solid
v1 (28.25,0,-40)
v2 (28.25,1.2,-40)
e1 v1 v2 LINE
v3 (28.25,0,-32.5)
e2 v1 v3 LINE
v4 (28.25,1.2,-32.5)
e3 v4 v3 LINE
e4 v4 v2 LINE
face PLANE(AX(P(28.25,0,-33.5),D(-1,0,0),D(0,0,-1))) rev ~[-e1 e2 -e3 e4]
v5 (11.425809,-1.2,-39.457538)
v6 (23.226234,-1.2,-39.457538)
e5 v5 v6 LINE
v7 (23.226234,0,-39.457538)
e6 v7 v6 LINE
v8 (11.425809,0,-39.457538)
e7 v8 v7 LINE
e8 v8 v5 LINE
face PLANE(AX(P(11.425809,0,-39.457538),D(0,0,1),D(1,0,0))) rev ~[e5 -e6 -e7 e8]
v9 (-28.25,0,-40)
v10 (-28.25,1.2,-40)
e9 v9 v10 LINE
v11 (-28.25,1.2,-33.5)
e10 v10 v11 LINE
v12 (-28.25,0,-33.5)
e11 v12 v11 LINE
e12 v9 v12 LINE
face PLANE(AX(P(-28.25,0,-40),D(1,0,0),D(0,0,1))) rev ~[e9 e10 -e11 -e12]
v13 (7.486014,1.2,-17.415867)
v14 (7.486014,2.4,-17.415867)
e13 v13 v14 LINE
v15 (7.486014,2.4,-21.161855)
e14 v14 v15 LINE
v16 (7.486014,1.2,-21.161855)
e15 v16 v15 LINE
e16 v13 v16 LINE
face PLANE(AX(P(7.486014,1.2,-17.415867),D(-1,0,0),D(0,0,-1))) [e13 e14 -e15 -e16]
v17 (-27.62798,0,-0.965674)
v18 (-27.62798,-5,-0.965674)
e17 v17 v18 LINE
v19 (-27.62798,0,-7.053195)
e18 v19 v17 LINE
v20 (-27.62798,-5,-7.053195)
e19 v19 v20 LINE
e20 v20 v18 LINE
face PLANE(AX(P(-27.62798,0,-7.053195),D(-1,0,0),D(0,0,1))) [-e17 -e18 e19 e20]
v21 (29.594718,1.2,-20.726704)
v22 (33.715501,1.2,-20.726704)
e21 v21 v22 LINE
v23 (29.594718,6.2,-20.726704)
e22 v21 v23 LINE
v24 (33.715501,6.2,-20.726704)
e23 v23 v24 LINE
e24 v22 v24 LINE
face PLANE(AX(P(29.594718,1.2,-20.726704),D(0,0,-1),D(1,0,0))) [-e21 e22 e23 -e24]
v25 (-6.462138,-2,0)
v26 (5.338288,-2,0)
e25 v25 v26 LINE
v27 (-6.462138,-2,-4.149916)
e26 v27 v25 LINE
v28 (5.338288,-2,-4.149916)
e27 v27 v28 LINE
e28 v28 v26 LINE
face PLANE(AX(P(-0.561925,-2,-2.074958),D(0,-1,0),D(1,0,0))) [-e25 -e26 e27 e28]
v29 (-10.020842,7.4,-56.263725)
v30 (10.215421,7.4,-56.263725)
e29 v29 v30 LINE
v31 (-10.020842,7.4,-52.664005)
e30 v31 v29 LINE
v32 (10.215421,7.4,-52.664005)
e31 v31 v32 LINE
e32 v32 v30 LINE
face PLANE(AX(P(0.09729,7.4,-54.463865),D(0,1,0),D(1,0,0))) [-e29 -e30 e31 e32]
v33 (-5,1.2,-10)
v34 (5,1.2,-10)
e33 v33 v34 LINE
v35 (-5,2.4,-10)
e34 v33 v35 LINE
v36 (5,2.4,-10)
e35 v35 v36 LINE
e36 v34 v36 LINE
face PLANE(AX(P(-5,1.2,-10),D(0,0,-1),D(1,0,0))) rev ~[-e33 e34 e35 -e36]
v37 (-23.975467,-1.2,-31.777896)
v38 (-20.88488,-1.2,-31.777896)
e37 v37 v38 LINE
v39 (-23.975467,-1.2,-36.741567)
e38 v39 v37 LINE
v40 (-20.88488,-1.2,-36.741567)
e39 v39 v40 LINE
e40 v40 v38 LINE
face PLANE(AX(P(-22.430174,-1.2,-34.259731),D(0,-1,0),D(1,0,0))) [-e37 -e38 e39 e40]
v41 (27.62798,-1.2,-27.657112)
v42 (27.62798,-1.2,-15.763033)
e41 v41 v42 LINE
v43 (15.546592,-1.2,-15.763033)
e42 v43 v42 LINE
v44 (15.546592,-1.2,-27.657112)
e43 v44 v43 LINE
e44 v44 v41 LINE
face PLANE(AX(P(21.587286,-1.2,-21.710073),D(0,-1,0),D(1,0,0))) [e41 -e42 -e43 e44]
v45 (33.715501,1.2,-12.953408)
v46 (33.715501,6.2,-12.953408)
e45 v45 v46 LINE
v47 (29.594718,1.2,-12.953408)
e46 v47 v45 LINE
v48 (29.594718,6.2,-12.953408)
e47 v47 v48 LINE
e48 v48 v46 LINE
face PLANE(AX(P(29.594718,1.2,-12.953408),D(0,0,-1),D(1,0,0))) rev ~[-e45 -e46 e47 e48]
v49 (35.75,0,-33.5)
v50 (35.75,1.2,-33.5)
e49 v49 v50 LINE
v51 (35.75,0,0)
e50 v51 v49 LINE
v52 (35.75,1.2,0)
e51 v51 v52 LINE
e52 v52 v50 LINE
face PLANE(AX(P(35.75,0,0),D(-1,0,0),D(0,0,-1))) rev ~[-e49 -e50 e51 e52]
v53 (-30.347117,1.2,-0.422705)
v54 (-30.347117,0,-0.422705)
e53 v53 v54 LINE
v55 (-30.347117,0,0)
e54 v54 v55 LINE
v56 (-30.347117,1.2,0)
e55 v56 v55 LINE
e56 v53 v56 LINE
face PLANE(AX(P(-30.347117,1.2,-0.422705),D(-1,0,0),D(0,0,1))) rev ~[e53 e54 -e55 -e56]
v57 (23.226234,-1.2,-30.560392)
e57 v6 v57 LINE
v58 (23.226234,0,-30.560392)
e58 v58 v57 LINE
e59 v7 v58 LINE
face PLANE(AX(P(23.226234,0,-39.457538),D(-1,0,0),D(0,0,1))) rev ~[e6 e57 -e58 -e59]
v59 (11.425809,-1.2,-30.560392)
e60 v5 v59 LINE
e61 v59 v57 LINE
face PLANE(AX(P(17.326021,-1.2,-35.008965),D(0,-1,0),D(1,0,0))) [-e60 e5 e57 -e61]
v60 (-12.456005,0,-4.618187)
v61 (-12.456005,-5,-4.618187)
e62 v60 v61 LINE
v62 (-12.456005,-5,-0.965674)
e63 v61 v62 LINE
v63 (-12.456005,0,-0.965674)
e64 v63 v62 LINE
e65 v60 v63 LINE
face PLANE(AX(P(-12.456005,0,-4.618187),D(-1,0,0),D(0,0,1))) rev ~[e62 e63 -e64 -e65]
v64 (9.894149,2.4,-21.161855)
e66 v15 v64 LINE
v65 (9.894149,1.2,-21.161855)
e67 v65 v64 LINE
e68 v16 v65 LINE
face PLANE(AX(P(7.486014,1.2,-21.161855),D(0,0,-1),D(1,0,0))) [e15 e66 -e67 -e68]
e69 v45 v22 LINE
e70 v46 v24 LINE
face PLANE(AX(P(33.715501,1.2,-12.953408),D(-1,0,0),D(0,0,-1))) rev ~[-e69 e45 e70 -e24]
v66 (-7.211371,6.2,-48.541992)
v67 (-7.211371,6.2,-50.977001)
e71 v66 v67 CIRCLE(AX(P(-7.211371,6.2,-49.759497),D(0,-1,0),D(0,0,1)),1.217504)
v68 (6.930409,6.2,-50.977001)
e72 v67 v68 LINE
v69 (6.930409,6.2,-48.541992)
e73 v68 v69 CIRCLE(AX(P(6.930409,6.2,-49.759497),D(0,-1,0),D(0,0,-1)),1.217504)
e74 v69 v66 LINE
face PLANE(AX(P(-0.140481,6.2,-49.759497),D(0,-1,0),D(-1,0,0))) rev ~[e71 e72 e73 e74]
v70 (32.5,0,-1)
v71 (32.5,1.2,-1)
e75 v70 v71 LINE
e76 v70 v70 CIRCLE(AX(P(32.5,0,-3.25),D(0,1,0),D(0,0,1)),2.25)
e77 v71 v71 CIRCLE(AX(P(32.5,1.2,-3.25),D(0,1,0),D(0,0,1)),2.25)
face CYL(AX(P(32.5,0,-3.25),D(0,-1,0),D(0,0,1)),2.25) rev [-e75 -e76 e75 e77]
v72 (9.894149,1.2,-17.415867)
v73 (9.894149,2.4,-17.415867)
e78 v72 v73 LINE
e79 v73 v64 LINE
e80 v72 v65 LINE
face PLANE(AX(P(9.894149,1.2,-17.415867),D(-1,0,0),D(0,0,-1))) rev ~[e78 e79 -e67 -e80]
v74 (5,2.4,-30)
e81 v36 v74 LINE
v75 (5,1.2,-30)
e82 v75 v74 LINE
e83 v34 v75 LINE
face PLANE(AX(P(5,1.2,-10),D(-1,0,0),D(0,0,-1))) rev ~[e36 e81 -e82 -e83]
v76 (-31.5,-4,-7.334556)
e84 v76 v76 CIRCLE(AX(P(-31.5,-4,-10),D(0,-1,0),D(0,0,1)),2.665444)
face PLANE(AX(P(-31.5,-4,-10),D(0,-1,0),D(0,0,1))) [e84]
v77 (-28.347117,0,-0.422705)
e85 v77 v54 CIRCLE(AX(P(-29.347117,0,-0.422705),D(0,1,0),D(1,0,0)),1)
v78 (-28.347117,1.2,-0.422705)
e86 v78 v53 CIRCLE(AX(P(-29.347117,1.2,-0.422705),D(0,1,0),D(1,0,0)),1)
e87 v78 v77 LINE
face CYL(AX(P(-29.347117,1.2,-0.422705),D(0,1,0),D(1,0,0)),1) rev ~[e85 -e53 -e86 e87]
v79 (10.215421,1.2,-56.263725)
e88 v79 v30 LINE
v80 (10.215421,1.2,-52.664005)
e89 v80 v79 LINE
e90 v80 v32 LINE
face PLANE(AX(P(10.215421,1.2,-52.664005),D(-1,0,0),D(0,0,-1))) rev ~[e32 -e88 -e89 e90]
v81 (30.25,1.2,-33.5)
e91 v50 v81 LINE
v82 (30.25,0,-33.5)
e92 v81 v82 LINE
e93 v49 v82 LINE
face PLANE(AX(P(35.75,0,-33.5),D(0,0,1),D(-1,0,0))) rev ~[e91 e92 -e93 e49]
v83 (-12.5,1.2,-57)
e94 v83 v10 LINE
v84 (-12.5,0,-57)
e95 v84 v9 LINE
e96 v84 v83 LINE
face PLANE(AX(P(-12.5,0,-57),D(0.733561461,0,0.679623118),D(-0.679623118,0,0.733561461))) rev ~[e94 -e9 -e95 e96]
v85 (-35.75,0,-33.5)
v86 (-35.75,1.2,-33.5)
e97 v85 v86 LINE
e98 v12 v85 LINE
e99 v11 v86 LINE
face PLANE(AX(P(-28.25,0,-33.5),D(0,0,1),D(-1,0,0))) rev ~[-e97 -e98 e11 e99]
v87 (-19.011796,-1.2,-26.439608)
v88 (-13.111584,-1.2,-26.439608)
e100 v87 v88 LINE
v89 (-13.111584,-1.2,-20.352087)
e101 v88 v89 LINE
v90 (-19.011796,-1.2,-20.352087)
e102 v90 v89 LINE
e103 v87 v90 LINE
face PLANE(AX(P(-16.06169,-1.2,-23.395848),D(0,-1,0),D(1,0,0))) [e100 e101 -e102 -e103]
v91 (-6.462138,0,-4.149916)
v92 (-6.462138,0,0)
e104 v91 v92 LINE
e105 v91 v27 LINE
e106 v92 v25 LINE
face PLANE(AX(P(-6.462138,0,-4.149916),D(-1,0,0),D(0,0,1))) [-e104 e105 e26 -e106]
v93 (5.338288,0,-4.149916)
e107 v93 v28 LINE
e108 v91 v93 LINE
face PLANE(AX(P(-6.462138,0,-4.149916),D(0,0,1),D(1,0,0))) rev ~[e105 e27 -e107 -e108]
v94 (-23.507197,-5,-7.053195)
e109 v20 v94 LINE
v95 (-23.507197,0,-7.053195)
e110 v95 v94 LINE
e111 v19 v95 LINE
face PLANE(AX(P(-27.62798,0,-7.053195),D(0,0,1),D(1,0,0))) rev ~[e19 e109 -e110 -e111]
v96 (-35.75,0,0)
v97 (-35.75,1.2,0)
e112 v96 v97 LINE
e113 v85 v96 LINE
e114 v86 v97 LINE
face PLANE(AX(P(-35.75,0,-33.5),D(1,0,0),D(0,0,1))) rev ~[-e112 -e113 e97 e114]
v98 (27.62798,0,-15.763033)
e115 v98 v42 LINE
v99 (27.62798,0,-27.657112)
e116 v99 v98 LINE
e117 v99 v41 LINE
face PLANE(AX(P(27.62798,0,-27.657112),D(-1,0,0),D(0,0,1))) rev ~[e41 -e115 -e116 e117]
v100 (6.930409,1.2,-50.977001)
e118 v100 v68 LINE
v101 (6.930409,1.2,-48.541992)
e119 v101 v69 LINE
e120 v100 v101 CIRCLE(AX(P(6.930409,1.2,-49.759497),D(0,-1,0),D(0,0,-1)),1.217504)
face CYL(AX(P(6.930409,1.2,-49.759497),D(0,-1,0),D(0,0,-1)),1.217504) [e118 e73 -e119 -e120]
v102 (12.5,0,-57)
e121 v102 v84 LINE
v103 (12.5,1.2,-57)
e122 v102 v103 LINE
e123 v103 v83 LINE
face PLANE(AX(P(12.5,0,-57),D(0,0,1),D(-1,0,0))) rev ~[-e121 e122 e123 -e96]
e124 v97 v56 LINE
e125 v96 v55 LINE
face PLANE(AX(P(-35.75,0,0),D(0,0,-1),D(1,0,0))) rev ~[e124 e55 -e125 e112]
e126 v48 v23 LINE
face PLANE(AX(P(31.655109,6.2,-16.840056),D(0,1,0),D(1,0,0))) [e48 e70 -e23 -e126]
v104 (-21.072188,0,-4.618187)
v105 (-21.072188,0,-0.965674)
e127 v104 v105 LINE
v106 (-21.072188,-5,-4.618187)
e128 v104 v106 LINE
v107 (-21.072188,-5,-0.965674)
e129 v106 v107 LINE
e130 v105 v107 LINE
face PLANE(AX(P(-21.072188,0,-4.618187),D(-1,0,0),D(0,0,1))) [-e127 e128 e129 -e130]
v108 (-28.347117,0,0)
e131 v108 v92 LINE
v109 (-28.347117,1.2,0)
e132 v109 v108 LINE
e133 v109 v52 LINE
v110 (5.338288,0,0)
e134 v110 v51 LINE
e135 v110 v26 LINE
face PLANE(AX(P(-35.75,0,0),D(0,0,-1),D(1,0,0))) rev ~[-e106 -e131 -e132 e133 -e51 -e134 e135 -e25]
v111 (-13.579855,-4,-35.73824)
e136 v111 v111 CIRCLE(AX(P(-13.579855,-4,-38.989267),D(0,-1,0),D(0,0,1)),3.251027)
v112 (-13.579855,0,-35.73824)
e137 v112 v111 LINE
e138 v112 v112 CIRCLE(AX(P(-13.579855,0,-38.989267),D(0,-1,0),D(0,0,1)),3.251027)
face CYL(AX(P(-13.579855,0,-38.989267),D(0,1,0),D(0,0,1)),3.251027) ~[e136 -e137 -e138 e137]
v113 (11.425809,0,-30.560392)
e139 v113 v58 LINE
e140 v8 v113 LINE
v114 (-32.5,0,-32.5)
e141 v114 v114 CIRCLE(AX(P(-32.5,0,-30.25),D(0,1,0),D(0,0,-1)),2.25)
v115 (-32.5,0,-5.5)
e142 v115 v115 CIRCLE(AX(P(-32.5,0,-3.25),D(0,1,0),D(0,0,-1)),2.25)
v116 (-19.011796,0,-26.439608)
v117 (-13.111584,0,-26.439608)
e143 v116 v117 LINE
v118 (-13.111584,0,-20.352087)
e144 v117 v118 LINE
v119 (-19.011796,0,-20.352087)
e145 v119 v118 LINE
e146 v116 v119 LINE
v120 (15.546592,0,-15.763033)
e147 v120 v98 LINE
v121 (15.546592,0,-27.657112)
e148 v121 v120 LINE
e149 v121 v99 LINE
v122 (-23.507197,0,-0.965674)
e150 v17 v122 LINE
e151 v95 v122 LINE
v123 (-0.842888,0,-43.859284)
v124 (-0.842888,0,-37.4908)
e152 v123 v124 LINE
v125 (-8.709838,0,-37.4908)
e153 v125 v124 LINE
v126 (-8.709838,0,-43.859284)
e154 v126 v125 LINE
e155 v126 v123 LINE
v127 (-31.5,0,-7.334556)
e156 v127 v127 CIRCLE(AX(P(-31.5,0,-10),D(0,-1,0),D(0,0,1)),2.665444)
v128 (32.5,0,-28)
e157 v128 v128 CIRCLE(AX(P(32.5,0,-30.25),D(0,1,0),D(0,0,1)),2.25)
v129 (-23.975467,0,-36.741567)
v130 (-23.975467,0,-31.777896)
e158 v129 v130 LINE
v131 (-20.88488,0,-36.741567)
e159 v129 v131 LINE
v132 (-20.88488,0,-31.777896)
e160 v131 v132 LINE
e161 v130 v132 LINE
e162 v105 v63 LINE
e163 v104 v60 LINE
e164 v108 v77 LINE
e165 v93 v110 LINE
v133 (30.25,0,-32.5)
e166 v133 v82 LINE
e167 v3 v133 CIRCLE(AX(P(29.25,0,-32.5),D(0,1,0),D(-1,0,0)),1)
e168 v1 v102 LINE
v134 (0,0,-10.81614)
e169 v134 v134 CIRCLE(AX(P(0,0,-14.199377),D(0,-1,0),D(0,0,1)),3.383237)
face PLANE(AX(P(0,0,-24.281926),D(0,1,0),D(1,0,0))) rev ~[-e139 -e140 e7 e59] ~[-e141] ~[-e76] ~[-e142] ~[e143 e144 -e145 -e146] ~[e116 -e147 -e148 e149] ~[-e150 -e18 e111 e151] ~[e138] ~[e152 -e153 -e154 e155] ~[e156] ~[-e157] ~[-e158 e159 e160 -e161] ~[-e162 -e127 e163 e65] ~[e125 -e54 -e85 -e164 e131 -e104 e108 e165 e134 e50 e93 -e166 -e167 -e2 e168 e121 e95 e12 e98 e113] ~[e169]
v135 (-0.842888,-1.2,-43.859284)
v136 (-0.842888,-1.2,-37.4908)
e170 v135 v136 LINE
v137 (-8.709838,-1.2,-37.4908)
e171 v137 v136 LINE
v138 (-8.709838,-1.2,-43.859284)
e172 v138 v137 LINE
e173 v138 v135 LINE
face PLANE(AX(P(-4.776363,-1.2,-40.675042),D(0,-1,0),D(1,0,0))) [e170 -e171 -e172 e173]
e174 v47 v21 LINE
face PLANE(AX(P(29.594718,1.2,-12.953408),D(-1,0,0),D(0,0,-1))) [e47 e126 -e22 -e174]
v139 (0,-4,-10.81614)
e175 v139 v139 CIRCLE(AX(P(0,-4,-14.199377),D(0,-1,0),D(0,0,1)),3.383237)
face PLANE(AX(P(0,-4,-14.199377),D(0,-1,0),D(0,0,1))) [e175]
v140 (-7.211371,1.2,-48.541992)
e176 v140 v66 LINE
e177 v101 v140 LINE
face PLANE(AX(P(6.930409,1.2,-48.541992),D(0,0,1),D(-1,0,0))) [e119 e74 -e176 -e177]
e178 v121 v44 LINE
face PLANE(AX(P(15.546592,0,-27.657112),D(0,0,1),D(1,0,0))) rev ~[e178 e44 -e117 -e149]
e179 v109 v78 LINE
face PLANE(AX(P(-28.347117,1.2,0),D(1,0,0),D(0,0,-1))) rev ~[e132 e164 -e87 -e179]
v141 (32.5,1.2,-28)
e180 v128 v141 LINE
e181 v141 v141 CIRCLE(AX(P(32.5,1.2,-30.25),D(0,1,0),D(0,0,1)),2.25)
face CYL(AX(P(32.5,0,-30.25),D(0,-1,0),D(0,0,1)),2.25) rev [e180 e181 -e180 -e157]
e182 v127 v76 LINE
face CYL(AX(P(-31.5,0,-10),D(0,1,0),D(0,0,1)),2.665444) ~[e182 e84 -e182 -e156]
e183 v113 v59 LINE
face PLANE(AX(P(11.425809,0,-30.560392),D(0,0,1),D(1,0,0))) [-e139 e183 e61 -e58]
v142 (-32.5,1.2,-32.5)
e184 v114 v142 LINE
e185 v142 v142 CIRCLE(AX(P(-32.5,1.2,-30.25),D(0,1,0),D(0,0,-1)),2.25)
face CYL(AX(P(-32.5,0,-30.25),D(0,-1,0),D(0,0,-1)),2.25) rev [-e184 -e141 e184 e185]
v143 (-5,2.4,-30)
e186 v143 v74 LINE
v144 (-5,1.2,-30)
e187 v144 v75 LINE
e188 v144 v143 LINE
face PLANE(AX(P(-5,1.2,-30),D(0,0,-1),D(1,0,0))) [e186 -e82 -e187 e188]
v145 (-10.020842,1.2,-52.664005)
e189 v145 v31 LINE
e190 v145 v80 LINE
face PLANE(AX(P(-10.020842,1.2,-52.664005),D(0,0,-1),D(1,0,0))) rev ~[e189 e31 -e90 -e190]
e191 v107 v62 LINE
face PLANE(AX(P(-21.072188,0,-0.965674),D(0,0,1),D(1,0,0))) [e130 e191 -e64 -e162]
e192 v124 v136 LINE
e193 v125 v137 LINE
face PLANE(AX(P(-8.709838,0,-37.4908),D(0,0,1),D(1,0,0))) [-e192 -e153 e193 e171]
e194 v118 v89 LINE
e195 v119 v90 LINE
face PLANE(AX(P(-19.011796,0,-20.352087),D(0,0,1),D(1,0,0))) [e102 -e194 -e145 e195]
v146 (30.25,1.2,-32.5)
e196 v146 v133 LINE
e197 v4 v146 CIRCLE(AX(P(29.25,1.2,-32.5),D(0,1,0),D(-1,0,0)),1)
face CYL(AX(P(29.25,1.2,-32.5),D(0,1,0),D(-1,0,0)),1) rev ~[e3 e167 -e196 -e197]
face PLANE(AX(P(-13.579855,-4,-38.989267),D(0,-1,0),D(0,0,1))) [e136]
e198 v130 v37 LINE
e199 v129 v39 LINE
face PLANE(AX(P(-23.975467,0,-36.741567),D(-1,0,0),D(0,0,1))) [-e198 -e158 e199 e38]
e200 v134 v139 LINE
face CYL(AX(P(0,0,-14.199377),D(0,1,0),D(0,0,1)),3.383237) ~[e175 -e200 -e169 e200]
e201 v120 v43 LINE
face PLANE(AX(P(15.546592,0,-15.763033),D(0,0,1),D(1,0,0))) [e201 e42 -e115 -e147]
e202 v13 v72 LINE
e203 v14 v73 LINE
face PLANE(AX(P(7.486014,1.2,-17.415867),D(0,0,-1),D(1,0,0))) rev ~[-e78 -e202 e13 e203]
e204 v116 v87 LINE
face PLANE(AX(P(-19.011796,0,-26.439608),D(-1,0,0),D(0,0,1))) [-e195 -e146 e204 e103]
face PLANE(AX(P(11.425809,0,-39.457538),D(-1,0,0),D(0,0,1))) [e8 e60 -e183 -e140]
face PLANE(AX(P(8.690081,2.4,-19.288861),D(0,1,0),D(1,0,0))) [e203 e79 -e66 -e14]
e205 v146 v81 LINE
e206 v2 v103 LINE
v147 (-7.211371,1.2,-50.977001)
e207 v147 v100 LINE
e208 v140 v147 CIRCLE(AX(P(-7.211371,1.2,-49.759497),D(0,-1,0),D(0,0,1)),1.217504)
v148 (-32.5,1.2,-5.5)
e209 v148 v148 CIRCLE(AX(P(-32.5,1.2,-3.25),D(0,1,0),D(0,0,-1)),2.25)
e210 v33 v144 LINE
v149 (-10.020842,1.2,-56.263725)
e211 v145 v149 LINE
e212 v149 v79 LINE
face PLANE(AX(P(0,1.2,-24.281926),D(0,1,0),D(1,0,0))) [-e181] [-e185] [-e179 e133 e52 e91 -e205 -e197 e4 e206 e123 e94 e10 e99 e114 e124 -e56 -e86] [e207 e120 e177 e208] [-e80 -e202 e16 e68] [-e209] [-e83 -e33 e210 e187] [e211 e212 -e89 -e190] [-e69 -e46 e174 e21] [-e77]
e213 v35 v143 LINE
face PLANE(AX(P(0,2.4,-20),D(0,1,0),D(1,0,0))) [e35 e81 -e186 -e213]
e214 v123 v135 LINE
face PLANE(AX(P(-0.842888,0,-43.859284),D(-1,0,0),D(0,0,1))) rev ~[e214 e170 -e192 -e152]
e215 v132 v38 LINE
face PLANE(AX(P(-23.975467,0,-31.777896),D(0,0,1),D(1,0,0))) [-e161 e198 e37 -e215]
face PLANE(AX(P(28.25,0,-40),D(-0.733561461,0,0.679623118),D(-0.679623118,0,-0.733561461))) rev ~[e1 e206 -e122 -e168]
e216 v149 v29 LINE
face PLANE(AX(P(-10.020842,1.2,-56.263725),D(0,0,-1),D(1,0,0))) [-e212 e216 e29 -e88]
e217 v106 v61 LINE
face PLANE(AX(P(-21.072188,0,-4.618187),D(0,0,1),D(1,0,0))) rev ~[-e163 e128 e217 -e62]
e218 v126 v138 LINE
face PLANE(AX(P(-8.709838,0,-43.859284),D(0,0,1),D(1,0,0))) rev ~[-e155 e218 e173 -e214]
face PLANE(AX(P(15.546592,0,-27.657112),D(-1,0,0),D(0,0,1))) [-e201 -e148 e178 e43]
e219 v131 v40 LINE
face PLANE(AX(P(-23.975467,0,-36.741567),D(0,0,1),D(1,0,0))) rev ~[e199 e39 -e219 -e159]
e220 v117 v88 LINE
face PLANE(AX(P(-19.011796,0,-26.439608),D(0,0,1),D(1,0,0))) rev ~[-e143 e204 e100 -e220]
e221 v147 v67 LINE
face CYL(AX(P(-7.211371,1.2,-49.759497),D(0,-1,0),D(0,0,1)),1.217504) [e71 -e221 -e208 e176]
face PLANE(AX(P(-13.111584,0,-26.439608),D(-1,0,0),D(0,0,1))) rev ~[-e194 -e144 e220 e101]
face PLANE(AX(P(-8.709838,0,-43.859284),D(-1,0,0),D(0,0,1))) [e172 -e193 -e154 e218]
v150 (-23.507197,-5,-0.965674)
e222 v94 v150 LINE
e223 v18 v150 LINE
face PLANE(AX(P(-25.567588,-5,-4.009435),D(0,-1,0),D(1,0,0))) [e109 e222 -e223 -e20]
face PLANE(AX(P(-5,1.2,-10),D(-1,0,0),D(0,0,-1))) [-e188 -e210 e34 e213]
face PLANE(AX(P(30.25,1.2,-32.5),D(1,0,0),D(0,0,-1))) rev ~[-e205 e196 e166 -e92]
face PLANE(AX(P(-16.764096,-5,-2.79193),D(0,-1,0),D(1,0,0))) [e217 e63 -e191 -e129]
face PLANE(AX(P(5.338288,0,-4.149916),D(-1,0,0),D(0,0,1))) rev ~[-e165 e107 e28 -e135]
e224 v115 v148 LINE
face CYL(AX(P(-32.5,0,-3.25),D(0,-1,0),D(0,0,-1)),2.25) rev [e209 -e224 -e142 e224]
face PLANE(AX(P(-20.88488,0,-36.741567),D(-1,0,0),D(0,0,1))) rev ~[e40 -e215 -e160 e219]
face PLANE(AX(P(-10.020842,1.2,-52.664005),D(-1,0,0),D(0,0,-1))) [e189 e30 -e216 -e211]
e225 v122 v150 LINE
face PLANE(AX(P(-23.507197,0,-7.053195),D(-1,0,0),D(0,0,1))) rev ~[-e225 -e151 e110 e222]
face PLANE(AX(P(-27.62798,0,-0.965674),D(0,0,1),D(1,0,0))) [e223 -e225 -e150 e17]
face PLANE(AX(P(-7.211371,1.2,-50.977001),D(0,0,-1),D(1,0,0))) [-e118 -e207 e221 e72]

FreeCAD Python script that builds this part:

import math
import FreeCAD as App
import Part
import Sketcher

doc = App.newDocument("Part")
body = doc.addObject("PartDesign::Body", "Body")

# Sketch on XZ plane
sketch1 = doc.addObject("Sketcher::SketchObject", "Sketch")
body.addObject(sketch1)
sketch1.AttachmentSupport = (doc.XZ_Plane, [""])
sketch1.MapMode = "FlatFace"
sketch1.addGeometry([
    Part.LineSegment(App.Vector(-35.8, 0, 0), App.Vector(35.8, 0, 0)),  # 0
    Part.LineSegment(App.Vector(35.8, 0, 0), App.Vector(35.8, -33.5, 0)),  # 1
    Part.LineSegment(App.Vector(35.8, -33.5, 0), App.Vector(28.2, -33.5, 0)),  # 2
    Part.LineSegment(App.Vector(28.2, -33.5, 0), App.Vector(28.2, -40, 0)),  # 3
    Part.LineSegment(App.Vector(28.2, -40, 0), App.Vector(12.5, -57, 0)),  # 4
    Part.LineSegment(App.Vector(12.5, -57, 0), App.Vector(-12.5, -57, 0)),  # 5
    Part.LineSegment(App.Vector(-12.5, -57, 0), App.Vector(-28.2, -40, 0)),  # 6
    Part.LineSegment(App.Vector(-28.2, -40, 0), App.Vector(-28.2, -33.5, 0)),  # 7
    Part.LineSegment(App.Vector(-28.2, -33.5, 0), App.Vector(-35.8, -33.5, 0)),  # 8
    Part.LineSegment(App.Vector(-35.8, -33.5, 0), App.Vector(-35.8, 0, 0)),  # 9
    Part.Circle(App.Vector(-32.5, -3.2, 0), App.Vector(0, 0, 1), 2.2),  # 10
    Part.Circle(App.Vector(32.5, -3.2, 0), App.Vector(0, 0, 1), 2.2),  # 11
    Part.Circle(App.Vector(-32.5, -30.2, 0), App.Vector(0, 0, 1), 2.2),  # 12
    Part.Circle(App.Vector(32.5, -30.2, 0), App.Vector(0, 0, 1), 2.2),  # 13
], False)
sketch1.addConstraint([
    Sketcher.Constraint("Coincident", 0, 2, 1, 1),
    Sketcher.Constraint("Coincident", 1, 2, 2, 1),
    Sketcher.Constraint("Coincident", 2, 2, 3, 1),
    Sketcher.Constraint("Coincident", 3, 2, 4, 1),
    Sketcher.Constraint("Coincident", 4, 2, 5, 1),
    Sketcher.Constraint("Coincident", 5, 2, 6, 1),
    Sketcher.Constraint("Coincident", 6, 2, 7, 1),
    Sketcher.Constraint("Coincident", 7, 2, 8, 1),
    Sketcher.Constraint("Coincident", 8, 2, 9, 1),
    Sketcher.Constraint("Coincident", 9, 2, 0, 1),
    Sketcher.Constraint("Horizontal", 0),
    Sketcher.Constraint("Vertical", 1),
    Sketcher.Constraint("Horizontal", 2),
    Sketcher.Constraint("Vertical", 3),
    Sketcher.Constraint("Horizontal", 5),
    Sketcher.Constraint("Vertical", 7),
    Sketcher.Constraint("Horizontal", 8),
    Sketcher.Constraint("Vertical", 9),
    Sketcher.Constraint("Equal", 10, 11),
    Sketcher.Constraint("Equal", 11, 12),
    Sketcher.Constraint("Equal", 12, 13),
    Sketcher.Constraint("Symmetric", 0, 2, 9, 2, -1, 1),
    Sketcher.Constraint("Symmetric", 10, 3, 11, 3, -2),
    Sketcher.Constraint("Symmetric", 12, 3, 13, 3, -2),
    Sketcher.Constraint("Symmetric", 3, 2, 6, 2, -2),
    Sketcher.Constraint("Horizontal", 2, 2, 7, 2),
    Sketcher.Constraint("Vertical", 10, 3, 12, 3),
    Sketcher.Constraint("Equal", 4, 6),
    Sketcher.Constraint("Diameter", 10, 4.5),
    Sketcher.Constraint("DistanceX", 5, 2, 5, 1, 25.0),
    Sketcher.Constraint("DistanceX", 0, 1, 0, 2, 71.5),
    Sketcher.Constraint("DistanceX", 2, 2, 2, 1, 7.5),
    Sketcher.Constraint("DistanceY", 1, 2, 1, 1, 33.5),
    Sketcher.Constraint("DistanceY", 3, 2, 3, 1, 6.5),
    Sketcher.Constraint("DistanceY", 4, 2, -1, 1, 57.0),
    Sketcher.Constraint("DistanceX", 10, 3, 11, 3, 65.0),
    Sketcher.Constraint("DistanceY", 12, 3, 10, 3, 27.0),
    Sketcher.Constraint("DistanceY", 10, 3, -1, 1, 3.25),
])
pad1 = doc.addObject("PartDesign::Pad", "Pad")
body.addObject(pad1)
pad1.Profile = sketch1
pad1.Length = 1.2
pad1.Reversed = True

# Sketch on XZ plane
sketch2 = doc.addObject("Sketcher::SketchObject", "Sketch001")
body.addObject(sketch2)
sketch2.AttachmentSupport = (doc.XZ_Plane, [""])
sketch2.MapMode = "FlatFace"
sketch2.AttachmentOffset = App.Placement(App.Vector(0, 0, -1.2), App.Rotation())
sketch2.addGeometry([
    Part.LineSegment(App.Vector(28.25, -33.5, 0), App.Vector(28.25, -32.5, 0)),  # 0
    Part.ArcOfCircle(Part.Circle(App.Vector(29.25, -32.5, 0), App.Vector(0, 0, 1), 1), math.radians(0), math.radians(180)),  # 1
    Part.LineSegment(App.Vector(30.25, -32.5, 0), App.Vector(30.25, -33.5, 0)),  # 2
    Part.LineSegment(App.Vector(30.25, -33.5, 0), App.Vector(28.25, -33.5, 0)),  # 3
    Part.LineSegment(App.Vector(-30.35, -0.42, 0), App.Vector(-30.35, 0, 0)),  # 4
    Part.LineSegment(App.Vector(-30.35, 0, 0), App.Vector(-28.35, 0, 0)),  # 5
    Part.LineSegment(App.Vector(-28.35, 0, 0), App.Vector(-28.35, -0.42, 0)),  # 6
    Part.ArcOfCircle(Part.Circle(App.Vector(-29.35, -0.42, 0), App.Vector(0, 0, 1), 1), math.radians(180), math.radians(360)),  # 7
], False)
sketch2.addConstraint([
    Sketcher.Constraint("Tangent", 0, 2, 1, 2),
    Sketcher.Constraint("Tangent", 1, 1, 2, 1),
    Sketcher.Constraint("Coincident", 2, 2, 3, 1),
    Sketcher.Constraint("Coincident", 3, 2, 0, 1),
    Sketcher.Constraint("Coincident", 4, 2, 5, 1),
    Sketcher.Constraint("Coincident", 5, 2, 6, 1),
    Sketcher.Constraint("Tangent", 6, 2, 7, 2),
    Sketcher.Constraint("Tangent", 7, 1, 4, 1),
    Sketcher.Constraint("Vertical", 0),
    Sketcher.Constraint("Vertical", 2),
    Sketcher.Constraint("Horizontal", 3),
    Sketcher.Constraint("Vertical", 4),
    Sketcher.Constraint("Horizontal", 5),
    Sketcher.Constraint("Vertical", 6),
    Sketcher.Constraint("Equal", 1, 7),
    Sketcher.Constraint("PointOnObject", 4, 2, -1),
    Sketcher.Constraint("Radius", 1, 1.0),
    Sketcher.Constraint("DistanceY", 0, 1, 0, 2, 1.0),
    Sketcher.Constraint("DistanceY", 1, 3, -1, 1, 32.5),
    Sketcher.Constraint("DistanceX", -1, 1, 1, 3, 29.25),
    Sketcher.Constraint("DistanceY", 4, 1, 4, 2, 0.422705),
    Sketcher.Constraint("DistanceX", 7, 3, -1, 1, 29.347117),
])
pocket1 = doc.addObject("PartDesign::Pocket", "Pocket")
body.addObject(pocket1)
pocket1.Profile = sketch2
pocket1.Length = 1.2
pocket1.Reversed = True

# Sketch on XZ plane
sketch3 = doc.addObject("Sketcher::SketchObject", "Sketch002")
body.addObject(sketch3)
sketch3.AttachmentSupport = (doc.XZ_Plane, [""])
sketch3.MapMode = "FlatFace"
sketch3.AttachmentOffset = App.Placement(App.Vector(0, 0, -1.2), App.Rotation())
sketch3.addGeometry([
    Part.LineSegment(App.Vector(-5, -30, 0), App.Vector(-5, -10, 0)),  # 0
    Part.LineSegment(App.Vector(-5, -10, 0), App.Vector(5, -10, 0)),  # 1
    Part.LineSegment(App.Vector(5, -10, 0), App.Vector(5, -30, 0)),  # 2
    Part.LineSegment(App.Vector(5, -30, 0), App.Vector(-5, -30, 0)),  # 3
    Part.LineSegment(App.Vector(7.5, -21.2, 0), App.Vector(7.5, -17.4, 0)),  # 4
    Part.LineSegment(App.Vector(7.5, -17.4, 0), App.Vector(9.9, -17.4, 0)),  # 5
    Part.LineSegment(App.Vector(9.9, -17.4, 0), App.Vector(9.9, -21.2, 0)),  # 6
    Part.LineSegment(App.Vector(9.9, -21.2, 0), App.Vector(7.5, -21.2, 0)),  # 7
], False)
sketch3.addConstraint([
    Sketcher.Constraint("Coincident", 0, 2, 1, 1),
    Sketcher.Constraint("Coincident", 1, 2, 2, 1),
    Sketcher.Constraint("Coincident", 2, 2, 3, 1),
    Sketcher.Constraint("Coincident", 3, 2, 0, 1),
    Sketcher.Constraint("Coincident", 4, 2, 5, 1),
    Sketcher.Constraint("Coincident", 5, 2, 6, 1),
    Sketcher.Constraint("Coincident", 6, 2, 7, 1),
    Sketcher.Constraint("Coincident", 7, 2, 4, 1),
    Sketcher.Constraint("Vertical", 0),
    Sketcher.Constraint("Horizontal", 1),
    Sketcher.Constraint("Vertical", 2),
    Sketcher.Constraint("Horizontal", 3),
    Sketcher.Constraint("Vertical", 4),
    Sketcher.Constraint("Horizontal", 5),
    Sketcher.Constraint("Vertical", 6),
    Sketcher.Constraint("Horizontal", 7),
    Sketcher.Constraint("DistanceX", 1, 1, 1, 2, 10.0),
    Sketcher.Constraint("DistanceY", 0, 1, 0, 2, 20.0),
    Sketcher.Constraint("DistanceX", 0, 2, -1, 1, 5.0),
    Sketcher.Constraint("DistanceY", 0, 2, -1, 1, 10.0),
    Sketcher.Constraint("DistanceX", 5, 1, 5, 2, 2.408135),
    Sketcher.Constraint("DistanceY", 4, 1, 4, 2, 3.745987),
    Sketcher.Constraint("DistanceX", -1, 1, 5, 2, 9.894149),
    Sketcher.Constraint("DistanceY", 4, 2, -1, 1, 17.415867),
])
pad2 = doc.addObject("PartDesign::Pad", "Pad001")
body.addObject(pad2)
pad2.Profile = sketch3
pad2.Length = 1.2
pad2.Reversed = True

# Sketch on XZ plane
sketch4 = doc.addObject("Sketcher::SketchObject", "Sketch003")
body.addObject(sketch4)
sketch4.AttachmentSupport = (doc.XZ_Plane, [""])
sketch4.MapMode = "FlatFace"
sketch4.AttachmentOffset = App.Placement(App.Vector(0, 0, -1.2), App.Rotation())
sketch4.addGeometry([
    Part.LineSegment(App.Vector(29.6, -20.7, 0), App.Vector(29.6, -13, 0)),  # 0
    Part.LineSegment(App.Vector(29.6, -13, 0), App.Vector(33.7, -13, 0)),  # 1
    Part.LineSegment(App.Vector(33.7, -13, 0), App.Vector(33.7, -20.7, 0)),  # 2
    Part.LineSegment(App.Vector(33.7, -20.7, 0), App.Vector(29.6, -20.7, 0)),  # 3
    Part.LineSegment(App.Vector(6.9, -51, 0), App.Vector(-7.2, -51, 0)),  # 4
    Part.ArcOfCircle(Part.Circle(App.Vector(-7.2, -49.8, 0), App.Vector(0, 0, 1), 1.2), math.radians(90), math.radians(270)),  # 5
    Part.LineSegment(App.Vector(-7.2, -48.5, 0), App.Vector(6.9, -48.5, 0)),  # 6
    Part.ArcOfCircle(Part.Circle(App.Vector(6.9, -49.8, 0), App.Vector(0, 0, 1), 1.2), math.radians(-90), math.radians(90)),  # 7
], False)
sketch4.addConstraint([
    Sketcher.Constraint("Coincident", 0, 2, 1, 1),
    Sketcher.Constraint("Coincident", 1, 2, 2, 1),
    Sketcher.Constraint("Coincident", 2, 2, 3, 1),
    Sketcher.Constraint("Coincident", 3, 2, 0, 1),
    Sketcher.Constraint("Tangent", 4, 2, 5, 2),
    Sketcher.Constraint("Tangent", 5, 1, 6, 1),
    Sketcher.Constraint("Tangent", 6, 2, 7, 2),
    Sketcher.Constraint("Tangent", 7, 1, 4, 1),
    Sketcher.Constraint("Vertical", 0),
    Sketcher.Constraint("Horizontal", 1),
    Sketcher.Constraint("Vertical", 2),
    Sketcher.Constraint("Horizontal", 3),
    Sketcher.Constraint("Horizontal", 4),
    Sketcher.Constraint("Horizontal", 6),
    Sketcher.Constraint("DistanceY", 4, 2, -1, 1, 50.977001),
    Sketcher.Constraint("Radius", 5, 1.217504),
    Sketcher.Constraint("DistanceX", 4, 2, 4, 1, 14.14178),
    Sketcher.Constraint("DistanceX", -1, 1, 1, 2, 33.715501),
    Sketcher.Constraint("DistanceX", 1, 1, 1, 2, 4.120783),
    Sketcher.Constraint("DistanceY", 0, 1, 0, 2, 7.773296),
    Sketcher.Constraint("DistanceX", 5, 3, -1, 1, 7.211371),
    Sketcher.Constraint("DistanceY", 7, 3, 0, 2, 36.806089),
])
pad3 = doc.addObject("PartDesign::Pad", "Pad002")
body.addObject(pad3)
pad3.Profile = sketch4
pad3.Length = 5
pad3.Reversed = True

# Sketch on XZ plane
sketch5 = doc.addObject("Sketcher::SketchObject", "Sketch004")
body.addObject(sketch5)
sketch5.AttachmentSupport = (doc.XZ_Plane, [""])
sketch5.MapMode = "FlatFace"
sketch5.AttachmentOffset = App.Placement(App.Vector(0, 0, -1.2), App.Rotation())
sketch5.addGeometry([
    Part.LineSegment(App.Vector(-10, -56.3, 0), App.Vector(-10, -52.7, 0)),
    Part.LineSegment(App.Vector(-10, -52.7, 0), App.Vector(10.2, -52.7, 0)),
    Part.LineSegment(App.Vector(10.2, -52.7, 0), App.Vector(10.2, -56.3, 0)),
    Part.LineSegment(App.Vector(10.2, -56.3, 0), App.Vector(-10, -56.3, 0)),
], False)
sketch5.addConstraint([
    Sketcher.Constraint("Coincident", 0, 2, 1, 1),
    Sketcher.Constraint("Coincident", 1, 2, 2, 1),
    Sketcher.Constraint("Coincident", 2, 2, 3, 1),
    Sketcher.Constraint("Coincident", 3, 2, 0, 1),
    Sketcher.Constraint("Vertical", 0),
    Sketcher.Constraint("Horizontal", 1),
    Sketcher.Constraint("Vertical", 2),
    Sketcher.Constraint("Horizontal", 3),
    Sketcher.Constraint("DistanceY", 0, 1, 0, 2, 3.59972),
    Sketcher.Constraint("DistanceX", 1, 1, 1, 2, 20.236263),
    Sketcher.Constraint("DistanceX", 0, 2, -1, 1, 10.020842),
    Sketcher.Constraint("DistanceY", 0, 2, -1, 1, 52.664005),
])
pad4 = doc.addObject("PartDesign::Pad", "Pad003")
body.addObject(pad4)
pad4.Profile = sketch5
pad4.Length = 6.2
pad4.Reversed = True

# Sketch on XZ plane
sketch6 = doc.addObject("Sketcher::SketchObject", "Sketch005")
body.addObject(sketch6)
sketch6.AttachmentSupport = (doc.XZ_Plane, [""])
sketch6.MapMode = "FlatFace"
sketch6.addGeometry([
    Part.LineSegment(App.Vector(11.4, -30.6, 0), App.Vector(11.4, -39.5, 0)),  # 0
    Part.LineSegment(App.Vector(11.4, -39.5, 0), App.Vector(23.2, -39.5, 0)),  # 1
    Part.LineSegment(App.Vector(23.2, -39.5, 0), App.Vector(23.2, -30.6, 0)),  # 2
    Part.LineSegment(App.Vector(23.2, -30.6, 0), App.Vector(11.4, -30.6, 0)),  # 3
    Part.LineSegment(App.Vector(15.5, -15.8, 0), App.Vector(15.5, -27.7, 0)),  # 4
    Part.LineSegment(App.Vector(15.5, -27.7, 0), App.Vector(27.6, -27.7, 0)),  # 5
    Part.LineSegment(App.Vector(27.6, -27.7, 0), App.Vector(27.6, -15.8, 0)),  # 6
    Part.LineSegment(App.Vector(27.6, -15.8, 0), App.Vector(15.5, -15.8, 0)),  # 7
    Part.LineSegment(App.Vector(-19, -20.4, 0), App.Vector(-19, -26.4, 0)),  # 8
    Part.LineSegment(App.Vector(-19, -26.4, 0), App.Vector(-13.1, -26.4, 0)),  # 9
    Part.LineSegment(App.Vector(-13.1, -26.4, 0), App.Vector(-13.1, -20.4, 0)),  # 10
    Part.LineSegment(App.Vector(-13.1, -20.4, 0), App.Vector(-19, -20.4, 0)),  # 11
    Part.LineSegment(App.Vector(-8.7, -37.5, 0), App.Vector(-8.7, -43.9, 0)),  # 12
    Part.LineSegment(App.Vector(-8.7, -43.9, 0), App.Vector(-0.8, -43.9, 0)),  # 13
    Part.LineSegment(App.Vector(-0.8, -43.9, 0), App.Vector(-0.8, -37.5, 0)),  # 14
    Part.LineSegment(App.Vector(-0.8, -37.5, 0), App.Vector(-8.7, -37.5, 0)),  # 15
    Part.LineSegment(App.Vector(-24, -31.8, 0), App.Vector(-24, -36.7, 0)),  # 16
    Part.LineSegment(App.Vector(-24, -36.7, 0), App.Vector(-20.9, -36.7, 0)),  # 17
    Part.LineSegment(App.Vector(-20.9, -36.7, 0), App.Vector(-20.9, -31.8, 0)),  # 18
    Part.LineSegment(App.Vector(-20.9, -31.8, 0), App.Vector(-24, -31.8, 0)),  # 19
], False)
sketch6.addConstraint([
    Sketcher.Constraint("Coincident", 0, 2, 1, 1),
    Sketcher.Constraint("Coincident", 1, 2, 2, 1),
    Sketcher.Constraint("Coincident", 2, 2, 3, 1),
    Sketcher.Constraint("Coincident", 3, 2, 0, 1),
    Sketcher.Constraint("Coincident", 4, 2, 5, 1),
    Sketcher.Constraint("Coincident", 5, 2, 6, 1),
    Sketcher.Constraint("Coincident", 6, 2, 7, 1),
    Sketcher.Constraint("Coincident", 7, 2, 4, 1),
    Sketcher.Constraint("Coincident", 8, 2, 9, 1),
    Sketcher.Constraint("Coincident", 9, 2, 10, 1),
    Sketcher.Constraint("Coincident", 10, 2, 11, 1),
    Sketcher.Constraint("Coincident", 11, 2, 8, 1),
    Sketcher.Constraint("Coincident", 12, 2, 13, 1),
    Sketcher.Constraint("Coincident", 13, 2, 14, 1),
    Sketcher.Constraint("Coincident", 14, 2, 15, 1),
    Sketcher.Constraint("Coincident", 15, 2, 12, 1),
    Sketcher.Constraint("Coincident", 16, 2, 17, 1),
    Sketcher.Constraint("Coincident", 17, 2, 18, 1),
    Sketcher.Constraint("Coincident", 18, 2, 19, 1),
    Sketcher.Constraint("Coincident", 19, 2, 16, 1),
    Sketcher.Constraint("Vertical", 0),
    Sketcher.Constraint("Horizontal", 1),
    Sketcher.Constraint("Vertical", 2),
    Sketcher.Constraint("Horizontal", 3),
    Sketcher.Constraint("Vertical", 4),
    Sketcher.Constraint("Horizontal", 5),
    Sketcher.Constraint("Vertical", 6),
    Sketcher.Constraint("Horizontal", 7),
    Sketcher.Constraint("Vertical", 8),
    Sketcher.Constraint("Horizontal", 9),
    Sketcher.Constraint("Vertical", 10),
    Sketcher.Constraint("Horizontal", 11),
    Sketcher.Constraint("Vertical", 12),
    Sketcher.Constraint("Horizontal", 13),
    Sketcher.Constraint("Vertical", 14),
    Sketcher.Constraint("Horizontal", 15),
    Sketcher.Constraint("Vertical", 16),
    Sketcher.Constraint("Horizontal", 17),
    Sketcher.Constraint("Vertical", 18),
    Sketcher.Constraint("Horizontal", 19),
    Sketcher.Constraint("DistanceX", 13, 1, 13, 2, 7.86695),
    Sketcher.Constraint("DistanceY", 4, 2, 4, 1, 11.89408),
    Sketcher.Constraint("DistanceY", 8, 2, 8, 1, 6.087521),
    Sketcher.Constraint("DistanceY", 16, 2, 16, 1, 4.963671),
    Sketcher.Constraint("DistanceY", 14, 2, -1, 1, 37.4908),
    Sketcher.Constraint("DistanceX", 1, 1, 1, 2, 11.800425),
    Sketcher.Constraint("DistanceX", 5, 1, 5, 2, 12.081388),
    Sketcher.Constraint("DistanceX", 9, 1, 9, 2, 5.900213),
    Sketcher.Constraint("DistanceX", 17, 1, 17, 2, 3.090588),
    Sketcher.Constraint("DistanceY", 0, 2, 0, 1, 8.897146),
    Sketcher.Constraint("DistanceY", 12, 2, 12, 1, 6.368484),
    Sketcher.Constraint("DistanceX", -1, 1, 0, 2, 11.425809),
    Sketcher.Constraint("DistanceY", 2, 2, -1, 1, 30.560392),
    Sketcher.Constraint("DistanceX", -1, 1, 5, 2, 27.62798),
    Sketcher.Constraint("DistanceY", 8, 2, -1, 1, 26.439608),
    Sketcher.Constraint("DistanceX", 17, 2, -1, 1, 20.88488),
    Sketcher.Constraint("DistanceY", 3, 2, 4, 2, 2.903279),
    Sketcher.Constraint("DistanceX", 8, 2, 4, 2, 34.558389),
    Sketcher.Constraint("DistanceX", 8, 2, 12, 2, 10.301959),
    Sketcher.Constraint("DistanceY", 16, 2, 8, 2, 10.301959),
])
pad5 = doc.addObject("PartDesign::Pad", "Pad004")
body.addObject(pad5)
pad5.Profile = sketch6
pad5.Length = 1.2

# Sketch on XZ plane
sketch7 = doc.addObject("Sketcher::SketchObject", "Sketch006")
body.addObject(sketch7)
sketch7.AttachmentSupport = (doc.XZ_Plane, [""])
sketch7.MapMode = "FlatFace"
sketch7.addGeometry([
    Part.Circle(App.Vector(-13.6, -39, 0), App.Vector(0, 0, 1), 3.3),
    Part.Circle(App.Vector(-31.5, -10, 0), App.Vector(0, 0, 1), 2.7),
    Part.Circle(App.Vector(0, -14.2, 0), App.Vector(0, 0, 1), 3.4),
], False)
sketch7.addConstraint([
    Sketcher.Constraint("PointOnObject", 2, 3, -2),
    Sketcher.Constraint("DistanceY", 1, 3, -1, 1, 10.0),
    Sketcher.Constraint("DistanceX", 1, 3, -1, 1, 31.5),
    Sketcher.Constraint("Diameter", 1, 5.330889),
    Sketcher.Constraint("Diameter", 0, 6.502055),
    Sketcher.Constraint("Diameter", 2, 6.766473),
    Sketcher.Constraint("DistanceY", 0, 3, 2, 3, 24.78989),
    Sketcher.Constraint("DistanceX", 0, 3, -1, 1, 13.579855),
    Sketcher.Constraint("DistanceY", 0, 3, -1, 1, 38.989267),
])
pad6 = doc.addObject("PartDesign::Pad", "Pad005")
body.addObject(pad6)
pad6.Profile = sketch7
pad6.Length = 4

# Sketch on XZ plane
sketch8 = doc.addObject("Sketcher::SketchObject", "Sketch007")
body.addObject(sketch8)
sketch8.AttachmentSupport = (doc.XZ_Plane, [""])
sketch8.MapMode = "FlatFace"
sketch8.addGeometry([
    Part.LineSegment(App.Vector(-6.5, 0, 0), App.Vector(-6.5, -4.1, 0)),
    Part.LineSegment(App.Vector(-6.5, -4.1, 0), App.Vector(5.3, -4.1, 0)),
    Part.LineSegment(App.Vector(5.3, -4.1, 0), App.Vector(5.3, 0, 0)),
    Part.LineSegment(App.Vector(5.3, 0, 0), App.Vector(-6.5, 0, 0)),
], False)
sketch8.addConstraint([
    Sketcher.Constraint("Coincident", 0, 2, 1, 1),
    Sketcher.Constraint("Coincident", 1, 2, 2, 1),
    Sketcher.Constraint("Coincident", 2, 2, 3, 1),
    Sketcher.Constraint("Coincident", 3, 2, 0, 1),
    Sketcher.Constraint("Vertical", 0),
    Sketcher.Constraint("Horizontal", 1),
    Sketcher.Constraint("Vertical", 2),
    Sketcher.Constraint("Horizontal", 3),
    Sketcher.Constraint("PointOnObject", 2, 2, -1),
    Sketcher.Constraint("DistanceX", 1, 1, 1, 2, 11.800425),
    Sketcher.Constraint("DistanceY", 0, 2, 0, 1, 4.149916),
    Sketcher.Constraint("DistanceX", 0, 2, -1, 1, 6.462138),
])
pad7 = doc.addObject("PartDesign::Pad", "Pad006")
body.addObject(pad7)
pad7.Profile = sketch8
pad7.Length = 2

# Sketch on XZ plane
sketch9 = doc.addObject("Sketcher::SketchObject", "Sketch008")
body.addObject(sketch9)
sketch9.AttachmentSupport = (doc.XZ_Plane, [""])
sketch9.MapMode = "FlatFace"
sketch9.addGeometry([
    Part.LineSegment(App.Vector(-27.6, -1, 0), App.Vector(-27.6, -7.1, 0)),  # 0
    Part.LineSegment(App.Vector(-27.6, -7.1, 0), App.Vector(-23.5, -7.1, 0)),  # 1
    Part.LineSegment(App.Vector(-23.5, -7.1, 0), App.Vector(-23.5, -1, 0)),  # 2
    Part.LineSegment(App.Vector(-23.5, -1, 0), App.Vector(-27.6, -1, 0)),  # 3
    Part.LineSegment(App.Vector(-21.1, -1, 0), App.Vector(-21.1, -4.6, 0)),  # 4
    Part.LineSegment(App.Vector(-21.1, -4.6, 0), App.Vector(-12.5, -4.6, 0)),  # 5
    Part.LineSegment(App.Vector(-12.5, -4.6, 0), App.Vector(-12.5, -1, 0)),  # 6
    Part.LineSegment(App.Vector(-12.5, -1, 0), App.Vector(-21.1, -1, 0)),  # 7
], False)
sketch9.addConstraint([
    Sketcher.Constraint("Coincident", 0, 2, 1, 1),
    Sketcher.Constraint("Coincident", 1, 2, 2, 1),
    Sketcher.Constraint("Coincident", 2, 2, 3, 1),
    Sketcher.Constraint("Coincident", 3, 2, 0, 1),
    Sketcher.Constraint("Coincident", 4, 2, 5, 1),
    Sketcher.Constraint("Coincident", 5, 2, 6, 1),
    Sketcher.Constraint("Coincident", 6, 2, 7, 1),
    Sketcher.Constraint("Coincident", 7, 2, 4, 1),
    Sketcher.Constraint("Vertical", 0),
    Sketcher.Constraint("Horizontal", 1),
    Sketcher.Constraint("Vertical", 2),
    Sketcher.Constraint("Horizontal", 3),
    Sketcher.Constraint("Vertical", 4),
    Sketcher.Constraint("Horizontal", 5),
    Sketcher.Constraint("Vertical", 6),
    Sketcher.Constraint("Horizontal", 7),
    Sketcher.Constraint("Horizontal", 3, 2, 6, 2),
    Sketcher.Constraint("DistanceY", 0, 2, 0, 1, 6.087521),
    Sketcher.Constraint("DistanceX", 1, 1, 1, 2, 4.120783),
    Sketcher.Constraint("DistanceX", 5, 1, 5, 2, 8.616184),
    Sketcher.Constraint("DistanceY", 4, 2, 4, 1, 3.652513),
    Sketcher.Constraint("DistanceX", 0, 2, -1, 1, 27.62798),
    Sketcher.Constraint("DistanceX", 4, 2, -1, 1, 21.072188),
    Sketcher.Constraint("DistanceY", 0, 2, -1, 1, 7.053195),
])
pad8 = doc.addObject("PartDesign::Pad", "Pad007")
body.addObject(pad8)
pad8.Profile = sketch9
pad8.Length = 5

doc.recompute()
